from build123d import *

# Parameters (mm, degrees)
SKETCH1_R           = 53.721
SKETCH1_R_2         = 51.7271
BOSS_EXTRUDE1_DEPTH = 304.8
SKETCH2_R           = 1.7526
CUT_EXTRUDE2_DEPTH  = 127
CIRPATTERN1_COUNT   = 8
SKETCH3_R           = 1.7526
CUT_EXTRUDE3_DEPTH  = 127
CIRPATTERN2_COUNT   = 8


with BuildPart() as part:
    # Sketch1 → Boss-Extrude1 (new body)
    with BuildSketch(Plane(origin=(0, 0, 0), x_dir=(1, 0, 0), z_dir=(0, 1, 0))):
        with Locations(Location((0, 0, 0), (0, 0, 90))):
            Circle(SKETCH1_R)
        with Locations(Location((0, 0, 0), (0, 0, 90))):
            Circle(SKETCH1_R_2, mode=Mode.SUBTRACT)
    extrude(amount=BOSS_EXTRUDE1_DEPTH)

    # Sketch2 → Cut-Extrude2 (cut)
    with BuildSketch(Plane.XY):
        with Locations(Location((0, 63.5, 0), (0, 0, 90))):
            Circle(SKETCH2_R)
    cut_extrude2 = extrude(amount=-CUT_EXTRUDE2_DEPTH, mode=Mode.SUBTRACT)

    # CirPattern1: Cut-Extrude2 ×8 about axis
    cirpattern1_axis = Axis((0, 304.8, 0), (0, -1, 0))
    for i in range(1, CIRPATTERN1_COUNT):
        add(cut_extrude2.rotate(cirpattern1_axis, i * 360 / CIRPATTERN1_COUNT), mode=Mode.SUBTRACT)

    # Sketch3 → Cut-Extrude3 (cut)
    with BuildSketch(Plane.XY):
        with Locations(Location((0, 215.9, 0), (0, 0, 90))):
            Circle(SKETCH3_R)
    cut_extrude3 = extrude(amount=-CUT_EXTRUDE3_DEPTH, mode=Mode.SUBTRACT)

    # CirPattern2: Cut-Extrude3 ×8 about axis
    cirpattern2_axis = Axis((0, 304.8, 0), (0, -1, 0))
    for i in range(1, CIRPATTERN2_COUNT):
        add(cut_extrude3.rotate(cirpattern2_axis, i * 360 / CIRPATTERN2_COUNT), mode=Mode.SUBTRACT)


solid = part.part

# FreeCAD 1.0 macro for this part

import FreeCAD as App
import Part
import Sketcher
from FreeCAD import Vector
Q = App.Units.Quantity

doc = App.newDocument("Part")
body = doc.addObject("PartDesign::Body", "Body")

sketch1 = body.newObject("Sketcher::SketchObject", "Sketch")
sketch1.AttachmentSupport = (doc.getObject("XZ_Plane"), [""])
sketch1.MapMode = "FlatFace"
sketch1.addGeometry([
    Part.Circle(Vector(0, 0, 0), Vector(0, 0, 1), 54),
    Part.Circle(Vector(0, 0, 0), Vector(0, 0, 1), 52),
], False)
sketch1.addConstraint([
    Sketcher.Constraint("Coincident", 0, 3, -1, 1),
    Sketcher.Constraint("Coincident", 1, 3, -1, 1),
    Sketcher.Constraint("Diameter", 0, Q("4.23 in")),
    Sketcher.Constraint("Diameter", 1, Q("4.073 in")),
])
pad1 = body.newObject("PartDesign::Pad", "Pad")
pad1.Profile = sketch1
pad1.Length = Q("12 in")
pad1.Reversed = True

sketch2 = body.newObject("Sketcher::SketchObject", "Sketch001")
sketch2.AttachmentSupport = (doc.getObject("XY_Plane"), [""])
sketch2.MapMode = "FlatFace"
sketch2.addGeometry(Part.Circle(Vector(0, 63.5, 0), Vector(0, 0, 1), 1.8), False)
sketch2.addConstraint([
    Sketcher.Constraint("PointOnObject", 0, 3, -2),
    Sketcher.Constraint("Diameter", 0, Q("0.138 in")),
    Sketcher.Constraint("DistanceY", -1, 1, 0, 3, Q("2.5 in")),
])
pocket1 = body.newObject("PartDesign::Pocket", "Pocket")
pocket1.Profile = sketch2
pocket1.Length = Q("5 in")
doc.recompute()

polarpattern = body.newObject("PartDesign::PolarPattern", "PolarPattern")
polarpattern.Originals = [pocket1]
polarpattern.Axis = (doc.getObject("Y_Axis"), [""])
polarpattern.Angle = 360
polarpattern.Occurrences = 8
body.Tip = polarpattern

sketch3 = body.newObject("Sketcher::SketchObject", "Sketch002")
sketch3.AttachmentSupport = (doc.getObject("XY_Plane"), [""])
sketch3.MapMode = "FlatFace"
sketch3.addGeometry(Part.Circle(Vector(0, 215.9, 0), Vector(0, 0, 1), 1.8), False)
sketch3.addConstraint([
    Sketcher.Constraint("PointOnObject", 0, 3, -2),
    Sketcher.Constraint("Diameter", 0, Q("0.138 in")),
    Sketcher.Constraint("DistanceY", -1, 1, 0, 3, Q("8.5 in")),
])
pocket2 = body.newObject("PartDesign::Pocket", "Pocket001")
pocket2.Profile = sketch3
pocket2.Length = Q("5 in")
doc.recompute()

polarpattern2 = body.newObject("PartDesign::PolarPattern", "PolarPattern001")
polarpattern2.Originals = [pocket2]
polarpattern2.Axis = (doc.getObject("Y_Axis"), [""])
polarpattern2.Angle = 360
polarpattern2.Occurrences = 8
body.Tip = polarpattern2

doc.recompute()
